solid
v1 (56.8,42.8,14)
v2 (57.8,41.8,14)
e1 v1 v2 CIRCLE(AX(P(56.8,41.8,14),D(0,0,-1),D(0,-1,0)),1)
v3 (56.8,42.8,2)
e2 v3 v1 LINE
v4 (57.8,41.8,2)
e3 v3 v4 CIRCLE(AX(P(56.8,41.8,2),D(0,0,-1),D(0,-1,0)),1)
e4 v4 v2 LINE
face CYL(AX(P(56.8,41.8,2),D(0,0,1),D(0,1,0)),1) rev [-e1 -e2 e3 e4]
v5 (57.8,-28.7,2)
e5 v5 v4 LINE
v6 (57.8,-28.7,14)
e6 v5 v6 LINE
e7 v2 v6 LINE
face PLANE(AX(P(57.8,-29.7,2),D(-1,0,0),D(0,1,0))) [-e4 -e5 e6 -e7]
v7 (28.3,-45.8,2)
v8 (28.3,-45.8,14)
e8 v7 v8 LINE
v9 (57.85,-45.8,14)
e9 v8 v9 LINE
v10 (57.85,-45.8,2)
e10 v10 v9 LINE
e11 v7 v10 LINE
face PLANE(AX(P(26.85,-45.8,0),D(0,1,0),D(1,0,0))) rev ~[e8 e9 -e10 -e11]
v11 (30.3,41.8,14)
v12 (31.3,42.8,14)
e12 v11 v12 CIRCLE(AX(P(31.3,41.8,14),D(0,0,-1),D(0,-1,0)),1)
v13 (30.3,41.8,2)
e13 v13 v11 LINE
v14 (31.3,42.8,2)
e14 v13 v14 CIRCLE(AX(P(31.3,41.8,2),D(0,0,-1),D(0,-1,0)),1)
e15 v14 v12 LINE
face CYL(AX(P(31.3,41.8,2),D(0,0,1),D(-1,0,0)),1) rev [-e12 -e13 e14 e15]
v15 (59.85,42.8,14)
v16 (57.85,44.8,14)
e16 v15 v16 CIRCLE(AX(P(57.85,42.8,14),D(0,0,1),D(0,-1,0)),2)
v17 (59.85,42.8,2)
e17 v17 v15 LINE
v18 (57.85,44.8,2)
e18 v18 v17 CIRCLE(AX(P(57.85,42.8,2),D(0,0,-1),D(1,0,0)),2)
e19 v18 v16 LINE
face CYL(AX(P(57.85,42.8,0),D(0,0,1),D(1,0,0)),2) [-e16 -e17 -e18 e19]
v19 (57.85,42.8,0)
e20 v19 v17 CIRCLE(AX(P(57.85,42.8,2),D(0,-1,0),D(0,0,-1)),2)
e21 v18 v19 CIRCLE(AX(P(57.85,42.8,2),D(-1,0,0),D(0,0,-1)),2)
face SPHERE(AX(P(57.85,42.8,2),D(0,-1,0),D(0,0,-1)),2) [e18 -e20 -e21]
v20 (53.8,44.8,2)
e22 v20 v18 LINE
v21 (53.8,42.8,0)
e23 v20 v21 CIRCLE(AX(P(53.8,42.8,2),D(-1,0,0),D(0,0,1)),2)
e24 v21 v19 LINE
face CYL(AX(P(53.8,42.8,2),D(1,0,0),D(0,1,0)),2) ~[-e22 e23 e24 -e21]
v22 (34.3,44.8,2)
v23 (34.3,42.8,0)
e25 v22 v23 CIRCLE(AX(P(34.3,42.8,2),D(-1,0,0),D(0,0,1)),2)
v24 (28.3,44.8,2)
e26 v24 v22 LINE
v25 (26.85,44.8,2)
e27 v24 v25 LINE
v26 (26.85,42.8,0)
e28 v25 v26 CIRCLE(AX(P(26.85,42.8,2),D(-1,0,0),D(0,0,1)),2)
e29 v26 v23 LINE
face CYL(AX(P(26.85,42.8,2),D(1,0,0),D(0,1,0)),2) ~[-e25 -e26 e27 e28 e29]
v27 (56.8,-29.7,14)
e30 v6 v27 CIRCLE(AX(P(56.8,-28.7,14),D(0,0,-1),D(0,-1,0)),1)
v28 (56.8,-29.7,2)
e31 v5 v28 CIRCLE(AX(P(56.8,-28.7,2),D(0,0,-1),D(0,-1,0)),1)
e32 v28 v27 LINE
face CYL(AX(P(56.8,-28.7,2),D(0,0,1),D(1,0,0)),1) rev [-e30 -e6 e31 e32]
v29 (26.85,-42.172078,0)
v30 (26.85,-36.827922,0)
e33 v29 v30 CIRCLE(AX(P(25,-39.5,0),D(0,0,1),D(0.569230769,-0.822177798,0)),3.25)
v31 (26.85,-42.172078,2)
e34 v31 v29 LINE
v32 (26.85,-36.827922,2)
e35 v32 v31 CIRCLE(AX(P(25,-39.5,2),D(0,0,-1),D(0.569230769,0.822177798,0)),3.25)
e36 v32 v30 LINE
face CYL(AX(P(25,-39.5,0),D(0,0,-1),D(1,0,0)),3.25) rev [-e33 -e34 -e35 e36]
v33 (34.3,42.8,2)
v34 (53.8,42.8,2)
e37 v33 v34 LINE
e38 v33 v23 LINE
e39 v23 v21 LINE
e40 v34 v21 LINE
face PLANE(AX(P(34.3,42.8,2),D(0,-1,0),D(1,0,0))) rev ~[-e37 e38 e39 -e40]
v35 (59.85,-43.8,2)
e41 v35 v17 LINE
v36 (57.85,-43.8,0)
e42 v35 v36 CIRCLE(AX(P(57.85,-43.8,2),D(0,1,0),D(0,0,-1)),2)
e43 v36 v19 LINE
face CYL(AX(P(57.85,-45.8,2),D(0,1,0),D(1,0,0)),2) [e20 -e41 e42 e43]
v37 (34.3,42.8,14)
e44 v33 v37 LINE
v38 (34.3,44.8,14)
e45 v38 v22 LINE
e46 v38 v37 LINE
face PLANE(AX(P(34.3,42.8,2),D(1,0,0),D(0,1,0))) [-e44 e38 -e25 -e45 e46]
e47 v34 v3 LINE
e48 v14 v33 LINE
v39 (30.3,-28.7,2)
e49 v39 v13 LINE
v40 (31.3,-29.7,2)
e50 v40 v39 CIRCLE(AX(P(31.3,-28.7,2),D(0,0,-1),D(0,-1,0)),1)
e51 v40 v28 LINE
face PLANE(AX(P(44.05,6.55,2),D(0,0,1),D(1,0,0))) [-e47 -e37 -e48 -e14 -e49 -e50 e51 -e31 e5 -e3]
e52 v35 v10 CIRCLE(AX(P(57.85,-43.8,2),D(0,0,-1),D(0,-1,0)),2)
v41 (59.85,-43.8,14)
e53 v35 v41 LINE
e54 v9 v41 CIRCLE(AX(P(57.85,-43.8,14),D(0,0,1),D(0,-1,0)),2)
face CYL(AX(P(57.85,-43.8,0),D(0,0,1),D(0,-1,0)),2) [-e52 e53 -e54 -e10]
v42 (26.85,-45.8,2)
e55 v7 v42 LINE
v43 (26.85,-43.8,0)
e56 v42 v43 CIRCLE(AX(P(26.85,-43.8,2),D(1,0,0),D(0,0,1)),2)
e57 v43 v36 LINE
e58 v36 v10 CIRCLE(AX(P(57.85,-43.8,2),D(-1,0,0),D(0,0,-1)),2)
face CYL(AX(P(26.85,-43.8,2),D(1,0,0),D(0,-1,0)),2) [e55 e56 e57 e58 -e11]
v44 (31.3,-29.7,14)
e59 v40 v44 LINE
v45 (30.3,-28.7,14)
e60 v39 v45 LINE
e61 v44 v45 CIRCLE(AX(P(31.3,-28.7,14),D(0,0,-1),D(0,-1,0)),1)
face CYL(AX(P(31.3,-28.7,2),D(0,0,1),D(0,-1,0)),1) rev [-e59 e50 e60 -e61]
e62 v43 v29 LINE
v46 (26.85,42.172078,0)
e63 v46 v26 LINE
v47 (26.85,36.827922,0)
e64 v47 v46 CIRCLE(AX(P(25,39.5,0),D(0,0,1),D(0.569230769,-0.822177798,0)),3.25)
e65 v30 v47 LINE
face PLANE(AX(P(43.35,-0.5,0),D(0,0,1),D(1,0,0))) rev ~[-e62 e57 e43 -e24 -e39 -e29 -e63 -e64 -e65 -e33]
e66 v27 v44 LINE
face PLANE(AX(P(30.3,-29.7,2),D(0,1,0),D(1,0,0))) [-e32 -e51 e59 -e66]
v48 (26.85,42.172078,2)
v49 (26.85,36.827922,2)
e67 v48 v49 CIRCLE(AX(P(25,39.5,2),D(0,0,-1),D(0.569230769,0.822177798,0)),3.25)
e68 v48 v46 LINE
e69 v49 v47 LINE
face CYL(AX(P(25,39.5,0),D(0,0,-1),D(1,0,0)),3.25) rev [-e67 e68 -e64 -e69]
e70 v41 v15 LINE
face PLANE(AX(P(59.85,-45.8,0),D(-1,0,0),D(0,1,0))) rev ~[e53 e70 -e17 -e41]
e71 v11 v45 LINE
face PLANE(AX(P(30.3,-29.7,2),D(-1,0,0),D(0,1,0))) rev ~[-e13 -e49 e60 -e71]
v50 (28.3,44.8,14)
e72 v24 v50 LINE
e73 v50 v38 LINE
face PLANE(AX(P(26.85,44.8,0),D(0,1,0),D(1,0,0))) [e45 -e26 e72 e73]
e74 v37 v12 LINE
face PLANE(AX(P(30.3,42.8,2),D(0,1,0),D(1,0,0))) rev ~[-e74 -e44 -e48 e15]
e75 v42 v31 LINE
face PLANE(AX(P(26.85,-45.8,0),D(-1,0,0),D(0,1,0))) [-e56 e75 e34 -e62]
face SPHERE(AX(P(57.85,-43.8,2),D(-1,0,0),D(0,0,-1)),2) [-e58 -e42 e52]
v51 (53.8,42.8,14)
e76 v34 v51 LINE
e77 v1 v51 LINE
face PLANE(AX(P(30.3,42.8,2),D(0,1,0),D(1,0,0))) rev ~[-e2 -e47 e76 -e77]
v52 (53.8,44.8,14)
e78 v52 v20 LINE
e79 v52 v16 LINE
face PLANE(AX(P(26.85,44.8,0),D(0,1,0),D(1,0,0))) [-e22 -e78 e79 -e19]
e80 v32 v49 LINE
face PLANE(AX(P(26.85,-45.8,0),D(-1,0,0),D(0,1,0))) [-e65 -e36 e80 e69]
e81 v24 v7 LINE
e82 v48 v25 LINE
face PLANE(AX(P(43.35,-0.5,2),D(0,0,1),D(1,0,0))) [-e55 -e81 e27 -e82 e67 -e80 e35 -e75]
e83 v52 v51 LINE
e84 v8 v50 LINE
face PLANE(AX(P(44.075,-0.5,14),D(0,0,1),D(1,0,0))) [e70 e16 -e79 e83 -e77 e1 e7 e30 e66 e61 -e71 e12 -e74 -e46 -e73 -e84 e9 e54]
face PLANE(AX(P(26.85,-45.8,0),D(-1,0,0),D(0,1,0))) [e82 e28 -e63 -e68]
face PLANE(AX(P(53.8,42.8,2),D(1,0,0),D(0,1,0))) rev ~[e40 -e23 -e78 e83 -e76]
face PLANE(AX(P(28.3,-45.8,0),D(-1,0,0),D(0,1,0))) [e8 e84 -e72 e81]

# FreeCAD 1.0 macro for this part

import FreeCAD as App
import Part
import Sketcher


def edges_at(feature, points):
    """Names of the edges that pass closest to the given points."""
    edges = feature.Shape.Edges
    near = lambda p: min(range(len(edges)), key=lambda i: edges[i].distToShape(Part.Vertex(*p))[0])
    return sorted({f"Edge{near(p) + 1}" for p in points})

doc = App.newDocument("Part")
body = doc.addObject("PartDesign::Body", "Body")

sketch1 = body.newObject("Sketcher::SketchObject", "Sketch")
sketch1.AttachmentSupport = (doc.getObject("XY_Plane"), [""])
sketch1.MapMode = "FlatFace"
sketch1.addGeometry([
    Part.LineSegment(App.Vector(27, 45, 0), App.Vector(27, -46, 0)),
    Part.LineSegment(App.Vector(27, -46, 0), App.Vector(60, -46, 0)),
    Part.LineSegment(App.Vector(60, -46, 0), App.Vector(60, 45, 0)),
    Part.LineSegment(App.Vector(60, 45, 0), App.Vector(27, 45, 0)),
], False)
sketch1.addConstraint([
    Sketcher.Constraint("Coincident", 0, 2, 1, 1),
    Sketcher.Constraint("Coincident", 1, 2, 2, 1),
    Sketcher.Constraint("Coincident", 2, 2, 3, 1),
    Sketcher.Constraint("Coincident", 3, 2, 0, 1),
    Sketcher.Constraint("Vertical", 0),
    Sketcher.Constraint("Horizontal", 1),
    Sketcher.Constraint("Vertical", 2),
    Sketcher.Constraint("Horizontal", 3),
    Sketcher.Constraint("DistanceX", 1, 1, 1, 2, 33.0),
    Sketcher.Constraint("DistanceY", 0, 2, 0, 1, 90.6),
    Sketcher.Constraint("DistanceY", 0, 2, -1, 1, 45.8),
    Sketcher.Constraint("DistanceX", -1, 1, 0, 2, 26.85),
])
pad1 = body.newObject("PartDesign::Pad", "Pad")
pad1.Profile = sketch1
pad1.Length = 2

sketch2 = body.newObject("Sketcher::SketchObject", "Sketch001")
sketch2.AttachmentSupport = (doc.getObject("XY_Plane"), [""])
sketch2.MapMode = "FlatFace"
sketch2.addGeometry([
    Part.LineSegment(App.Vector(28, 45, 0), App.Vector(28, -46, 0)),
    Part.LineSegment(App.Vector(28, -46, 0), App.Vector(60, -46, 0)),
    Part.LineSegment(App.Vector(60, -46, 0), App.Vector(60, 45, 0)),
    Part.LineSegment(App.Vector(60, 45, 0), App.Vector(28, 45, 0)),
], False)
sketch2.addConstraint([
    Sketcher.Constraint("Coincident", 0, 2, 1, 1),
    Sketcher.Constraint("Coincident", 1, 2, 2, 1),
    Sketcher.Constraint("Coincident", 2, 2, 3, 1),
    Sketcher.Constraint("Coincident", 3, 2, 0, 1),
    Sketcher.Constraint("Vertical", 0),
    Sketcher.Constraint("Horizontal", 1),
    Sketcher.Constraint("Vertical", 2),
    Sketcher.Constraint("Horizontal", 3),
    Sketcher.Constraint("DistanceY", 0, 2, 0, 1, 90.6),
    Sketcher.Constraint("DistanceX", 1, 1, 1, 2, 31.55),
    Sketcher.Constraint("DistanceX", -1, 1, 0, 2, 28.3),
    Sketcher.Constraint("DistanceY", 0, 2, -1, 1, 45.8),
])
pad2 = body.newObject("PartDesign::Pad", "Pad001")
pad2.Profile = sketch2
pad2.Length = 14

sketch3 = body.newObject("Sketcher::SketchObject", "Sketch002")
sketch3.AttachmentSupport = (doc.getObject("XY_Plane"), [""])
sketch3.MapMode = "FlatFace"
sketch3.AttachmentOffset = App.Placement(App.Vector(0, 0, 2), App.Rotation())
sketch3.addGeometry([
    Part.LineSegment(App.Vector(30, 43, 0), App.Vector(30, -30, 0)),
    Part.LineSegment(App.Vector(30, -30, 0), App.Vector(58, -30, 0)),
    Part.LineSegment(App.Vector(58, -30, 0), App.Vector(58, 43, 0)),
    Part.LineSegment(App.Vector(58, 43, 0), App.Vector(30, 43, 0)),
], False)
sketch3.addConstraint([
    Sketcher.Constraint("Coincident", 0, 2, 1, 1),
    Sketcher.Constraint("Coincident", 1, 2, 2, 1),
    Sketcher.Constraint("Coincident", 2, 2, 3, 1),
    Sketcher.Constraint("Coincident", 3, 2, 0, 1),
    Sketcher.Constraint("Vertical", 0),
    Sketcher.Constraint("Horizontal", 1),
    Sketcher.Constraint("Vertical", 2),
    Sketcher.Constraint("Horizontal", 3),
    Sketcher.Constraint("DistanceX", 1, 1, 1, 2, 27.5),
    Sketcher.Constraint("DistanceY", 0, 2, 0, 1, 72.5),
    Sketcher.Constraint("DistanceX", -1, 1, 0, 2, 30.3),
    Sketcher.Constraint("DistanceY", 0, 2, -1, 1, 29.7),
])
pocket1 = body.newObject("PartDesign::Pocket", "Pocket")
pocket1.Profile = sketch3
pocket1.Type = "ThroughAll"
pocket1.Reversed = True

sketch4 = body.newObject("Sketcher::SketchObject", "Sketch003")
sketch4.AttachmentSupport = (doc.getObject("XY_Plane"), [""])
sketch4.MapMode = "FlatFace"
sketch4.AttachmentOffset = App.Placement(App.Vector(0, 0, 2), App.Rotation())
sketch4.addGeometry([
    Part.LineSegment(App.Vector(34, 50, 0), App.Vector(34, 43, 0)),
    Part.LineSegment(App.Vector(34, 43, 0), App.Vector(54, 43, 0)),
    Part.LineSegment(App.Vector(54, 43, 0), App.Vector(54, 50, 0)),
    Part.LineSegment(App.Vector(54, 50, 0), App.Vector(34, 50, 0)),
], False)
sketch4.addConstraint([
    Sketcher.Constraint("Coincident", 0, 2, 1, 1),
    Sketcher.Constraint("Coincident", 1, 2, 2, 1),
    Sketcher.Constraint("Coincident", 2, 2, 3, 1),
    Sketcher.Constraint("Coincident", 3, 2, 0, 1),
    Sketcher.Constraint("Vertical", 0),
    Sketcher.Constraint("Horizontal", 1),
    Sketcher.Constraint("Vertical", 2),
    Sketcher.Constraint("Horizontal", 3),
    Sketcher.Constraint("DistanceX", 1, 1, 1, 2, 19.5),
    Sketcher.Constraint("DistanceY", 0, 2, 0, 1, 7.2),
    Sketcher.Constraint("DistanceY", -1, 1, 2, 2, 50.0),
    Sketcher.Constraint("DistanceX", -1, 1, 0, 2, 34.3),
])
pocket2 = body.newObject("PartDesign::Pocket", "Pocket001")
pocket2.Profile = sketch4
pocket2.Type = "ThroughAll"
pocket2.Midplane = True

sketch5 = body.newObject("Sketcher::SketchObject", "Sketch004")
sketch5.AttachmentSupport = (doc.getObject("XY_Plane"), [""])
sketch5.MapMode = "FlatFace"
sketch5.addGeometry([
    Part.Circle(App.Vector(25, 39.5, 0), App.Vector(0, 0, 1), 3.2),
    Part.Circle(App.Vector(25, -39.5, 0), App.Vector(0, 0, 1), 3.2),
], False)
sketch5.addConstraint([
    Sketcher.Constraint("Equal", 0, 1),
    Sketcher.Constraint("Symmetric", 0, 3, 1, 3, -1),
    Sketcher.Constraint("Diameter", 0, 6.5),
    Sketcher.Constraint("DistanceX", -1, 1, 0, 3, 25.0),
    Sketcher.Constraint("DistanceY", 1, 3, 0, 3, 79.0),
])
pocket3 = body.newObject("PartDesign::Pocket", "Pocket002")
pocket3.Profile = sketch5
pocket3.Length = 2
pocket3.Reversed = True
doc.recompute()

fillet = body.newObject("PartDesign::Fillet", "Fillet")
fillet.Base = (pocket3, edges_at(pocket3, [
    (43.35, -45.8, 0),
    (59.85, -0.5, 0),
    (56.825, 44.8, 0),
    (30.575, 44.8, 0),
    (59.85, -45.8, 7),
    (59.85, 44.8, 7),
]))
fillet.Radius = 2
doc.recompute()

fillet2 = body.newObject("PartDesign::Fillet", "Fillet001")
fillet2.Base = (fillet, edges_at(fillet, [
    (30.3, -29.7, 8),
    (57.8, -29.7, 8),
    (57.8, 42.8, 8),
    (30.3, 42.8, 8),
]))
fillet2.Radius = 1

doc.recompute()
